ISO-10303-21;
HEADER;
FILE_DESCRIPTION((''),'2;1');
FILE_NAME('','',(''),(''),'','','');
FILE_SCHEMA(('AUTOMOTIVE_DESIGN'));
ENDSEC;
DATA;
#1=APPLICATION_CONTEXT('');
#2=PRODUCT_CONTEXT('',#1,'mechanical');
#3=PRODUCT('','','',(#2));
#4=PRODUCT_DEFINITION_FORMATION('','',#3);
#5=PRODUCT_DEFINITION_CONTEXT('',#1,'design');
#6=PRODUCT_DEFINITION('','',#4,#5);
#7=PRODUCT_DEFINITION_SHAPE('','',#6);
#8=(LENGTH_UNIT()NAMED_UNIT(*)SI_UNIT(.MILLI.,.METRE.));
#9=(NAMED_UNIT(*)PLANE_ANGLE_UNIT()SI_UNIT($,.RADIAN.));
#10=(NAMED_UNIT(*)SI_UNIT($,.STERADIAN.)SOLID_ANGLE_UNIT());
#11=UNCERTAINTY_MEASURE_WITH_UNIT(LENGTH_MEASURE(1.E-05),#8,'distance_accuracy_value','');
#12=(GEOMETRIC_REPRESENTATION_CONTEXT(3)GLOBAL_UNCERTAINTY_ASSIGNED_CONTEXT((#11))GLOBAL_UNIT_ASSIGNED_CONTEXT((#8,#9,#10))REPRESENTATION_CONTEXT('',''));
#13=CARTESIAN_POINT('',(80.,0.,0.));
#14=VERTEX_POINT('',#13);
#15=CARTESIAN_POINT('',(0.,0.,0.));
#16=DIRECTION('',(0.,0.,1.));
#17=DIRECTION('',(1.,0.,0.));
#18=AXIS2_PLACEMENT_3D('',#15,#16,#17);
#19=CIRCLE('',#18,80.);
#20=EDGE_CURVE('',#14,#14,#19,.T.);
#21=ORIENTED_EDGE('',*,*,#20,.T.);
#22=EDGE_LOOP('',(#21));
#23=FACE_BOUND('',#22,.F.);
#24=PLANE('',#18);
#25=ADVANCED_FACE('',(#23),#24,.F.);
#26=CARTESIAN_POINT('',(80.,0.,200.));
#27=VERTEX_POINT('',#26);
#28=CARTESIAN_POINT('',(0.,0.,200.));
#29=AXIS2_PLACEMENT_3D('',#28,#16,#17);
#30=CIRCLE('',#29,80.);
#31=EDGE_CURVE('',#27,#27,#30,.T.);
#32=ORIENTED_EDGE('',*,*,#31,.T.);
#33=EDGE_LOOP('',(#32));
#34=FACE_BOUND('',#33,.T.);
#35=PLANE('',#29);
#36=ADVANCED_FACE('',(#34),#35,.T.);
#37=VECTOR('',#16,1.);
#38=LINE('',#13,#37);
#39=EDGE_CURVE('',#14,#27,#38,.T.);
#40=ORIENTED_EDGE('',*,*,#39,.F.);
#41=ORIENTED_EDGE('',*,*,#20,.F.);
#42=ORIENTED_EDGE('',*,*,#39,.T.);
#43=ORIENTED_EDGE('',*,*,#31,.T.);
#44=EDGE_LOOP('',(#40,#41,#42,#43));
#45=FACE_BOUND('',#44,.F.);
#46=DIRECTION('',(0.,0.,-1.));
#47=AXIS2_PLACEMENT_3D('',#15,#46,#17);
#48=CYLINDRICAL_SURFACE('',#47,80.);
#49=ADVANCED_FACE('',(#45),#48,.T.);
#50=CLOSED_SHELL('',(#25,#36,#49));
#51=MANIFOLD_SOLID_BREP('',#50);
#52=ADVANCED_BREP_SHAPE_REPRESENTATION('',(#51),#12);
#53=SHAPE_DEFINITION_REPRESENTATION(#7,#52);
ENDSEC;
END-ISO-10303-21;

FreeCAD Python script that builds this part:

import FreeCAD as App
import Part
import Sketcher

V = App.Vector
Q = App.Units.Quantity

doc = App.newDocument("Part")
body = doc.addObject("PartDesign::Body", "Body")

# Sketch on XY plane
sketch1 = doc.addObject("Sketcher::SketchObject", "Sketch")
body.addObject(sketch1)
sketch1.AttachmentSupport = (doc.XY_Plane, [""])
sketch1.MapMode = "FlatFace"
sketch1.addGeometry(Part.Circle(V(0, 0, 0), V(0, 0, 1), 80), False)
sketch1.addConstraint(Sketcher.Constraint("Coincident", 0, 3, -1, 1))
sketch1.addConstraint(Sketcher.Constraint("Diameter", 0, Q("160 mm")))
pad1 = doc.addObject("PartDesign::Pad", "Pad")
body.addObject(pad1)
pad1.Profile = sketch1
pad1.Length = 200
body2 = doc.addObject("PartDesign::Body", "Body001")
doc.recompute()

body2.BaseFeature = body
doc.recompute()
body.Visibility = False

doc.recompute()
